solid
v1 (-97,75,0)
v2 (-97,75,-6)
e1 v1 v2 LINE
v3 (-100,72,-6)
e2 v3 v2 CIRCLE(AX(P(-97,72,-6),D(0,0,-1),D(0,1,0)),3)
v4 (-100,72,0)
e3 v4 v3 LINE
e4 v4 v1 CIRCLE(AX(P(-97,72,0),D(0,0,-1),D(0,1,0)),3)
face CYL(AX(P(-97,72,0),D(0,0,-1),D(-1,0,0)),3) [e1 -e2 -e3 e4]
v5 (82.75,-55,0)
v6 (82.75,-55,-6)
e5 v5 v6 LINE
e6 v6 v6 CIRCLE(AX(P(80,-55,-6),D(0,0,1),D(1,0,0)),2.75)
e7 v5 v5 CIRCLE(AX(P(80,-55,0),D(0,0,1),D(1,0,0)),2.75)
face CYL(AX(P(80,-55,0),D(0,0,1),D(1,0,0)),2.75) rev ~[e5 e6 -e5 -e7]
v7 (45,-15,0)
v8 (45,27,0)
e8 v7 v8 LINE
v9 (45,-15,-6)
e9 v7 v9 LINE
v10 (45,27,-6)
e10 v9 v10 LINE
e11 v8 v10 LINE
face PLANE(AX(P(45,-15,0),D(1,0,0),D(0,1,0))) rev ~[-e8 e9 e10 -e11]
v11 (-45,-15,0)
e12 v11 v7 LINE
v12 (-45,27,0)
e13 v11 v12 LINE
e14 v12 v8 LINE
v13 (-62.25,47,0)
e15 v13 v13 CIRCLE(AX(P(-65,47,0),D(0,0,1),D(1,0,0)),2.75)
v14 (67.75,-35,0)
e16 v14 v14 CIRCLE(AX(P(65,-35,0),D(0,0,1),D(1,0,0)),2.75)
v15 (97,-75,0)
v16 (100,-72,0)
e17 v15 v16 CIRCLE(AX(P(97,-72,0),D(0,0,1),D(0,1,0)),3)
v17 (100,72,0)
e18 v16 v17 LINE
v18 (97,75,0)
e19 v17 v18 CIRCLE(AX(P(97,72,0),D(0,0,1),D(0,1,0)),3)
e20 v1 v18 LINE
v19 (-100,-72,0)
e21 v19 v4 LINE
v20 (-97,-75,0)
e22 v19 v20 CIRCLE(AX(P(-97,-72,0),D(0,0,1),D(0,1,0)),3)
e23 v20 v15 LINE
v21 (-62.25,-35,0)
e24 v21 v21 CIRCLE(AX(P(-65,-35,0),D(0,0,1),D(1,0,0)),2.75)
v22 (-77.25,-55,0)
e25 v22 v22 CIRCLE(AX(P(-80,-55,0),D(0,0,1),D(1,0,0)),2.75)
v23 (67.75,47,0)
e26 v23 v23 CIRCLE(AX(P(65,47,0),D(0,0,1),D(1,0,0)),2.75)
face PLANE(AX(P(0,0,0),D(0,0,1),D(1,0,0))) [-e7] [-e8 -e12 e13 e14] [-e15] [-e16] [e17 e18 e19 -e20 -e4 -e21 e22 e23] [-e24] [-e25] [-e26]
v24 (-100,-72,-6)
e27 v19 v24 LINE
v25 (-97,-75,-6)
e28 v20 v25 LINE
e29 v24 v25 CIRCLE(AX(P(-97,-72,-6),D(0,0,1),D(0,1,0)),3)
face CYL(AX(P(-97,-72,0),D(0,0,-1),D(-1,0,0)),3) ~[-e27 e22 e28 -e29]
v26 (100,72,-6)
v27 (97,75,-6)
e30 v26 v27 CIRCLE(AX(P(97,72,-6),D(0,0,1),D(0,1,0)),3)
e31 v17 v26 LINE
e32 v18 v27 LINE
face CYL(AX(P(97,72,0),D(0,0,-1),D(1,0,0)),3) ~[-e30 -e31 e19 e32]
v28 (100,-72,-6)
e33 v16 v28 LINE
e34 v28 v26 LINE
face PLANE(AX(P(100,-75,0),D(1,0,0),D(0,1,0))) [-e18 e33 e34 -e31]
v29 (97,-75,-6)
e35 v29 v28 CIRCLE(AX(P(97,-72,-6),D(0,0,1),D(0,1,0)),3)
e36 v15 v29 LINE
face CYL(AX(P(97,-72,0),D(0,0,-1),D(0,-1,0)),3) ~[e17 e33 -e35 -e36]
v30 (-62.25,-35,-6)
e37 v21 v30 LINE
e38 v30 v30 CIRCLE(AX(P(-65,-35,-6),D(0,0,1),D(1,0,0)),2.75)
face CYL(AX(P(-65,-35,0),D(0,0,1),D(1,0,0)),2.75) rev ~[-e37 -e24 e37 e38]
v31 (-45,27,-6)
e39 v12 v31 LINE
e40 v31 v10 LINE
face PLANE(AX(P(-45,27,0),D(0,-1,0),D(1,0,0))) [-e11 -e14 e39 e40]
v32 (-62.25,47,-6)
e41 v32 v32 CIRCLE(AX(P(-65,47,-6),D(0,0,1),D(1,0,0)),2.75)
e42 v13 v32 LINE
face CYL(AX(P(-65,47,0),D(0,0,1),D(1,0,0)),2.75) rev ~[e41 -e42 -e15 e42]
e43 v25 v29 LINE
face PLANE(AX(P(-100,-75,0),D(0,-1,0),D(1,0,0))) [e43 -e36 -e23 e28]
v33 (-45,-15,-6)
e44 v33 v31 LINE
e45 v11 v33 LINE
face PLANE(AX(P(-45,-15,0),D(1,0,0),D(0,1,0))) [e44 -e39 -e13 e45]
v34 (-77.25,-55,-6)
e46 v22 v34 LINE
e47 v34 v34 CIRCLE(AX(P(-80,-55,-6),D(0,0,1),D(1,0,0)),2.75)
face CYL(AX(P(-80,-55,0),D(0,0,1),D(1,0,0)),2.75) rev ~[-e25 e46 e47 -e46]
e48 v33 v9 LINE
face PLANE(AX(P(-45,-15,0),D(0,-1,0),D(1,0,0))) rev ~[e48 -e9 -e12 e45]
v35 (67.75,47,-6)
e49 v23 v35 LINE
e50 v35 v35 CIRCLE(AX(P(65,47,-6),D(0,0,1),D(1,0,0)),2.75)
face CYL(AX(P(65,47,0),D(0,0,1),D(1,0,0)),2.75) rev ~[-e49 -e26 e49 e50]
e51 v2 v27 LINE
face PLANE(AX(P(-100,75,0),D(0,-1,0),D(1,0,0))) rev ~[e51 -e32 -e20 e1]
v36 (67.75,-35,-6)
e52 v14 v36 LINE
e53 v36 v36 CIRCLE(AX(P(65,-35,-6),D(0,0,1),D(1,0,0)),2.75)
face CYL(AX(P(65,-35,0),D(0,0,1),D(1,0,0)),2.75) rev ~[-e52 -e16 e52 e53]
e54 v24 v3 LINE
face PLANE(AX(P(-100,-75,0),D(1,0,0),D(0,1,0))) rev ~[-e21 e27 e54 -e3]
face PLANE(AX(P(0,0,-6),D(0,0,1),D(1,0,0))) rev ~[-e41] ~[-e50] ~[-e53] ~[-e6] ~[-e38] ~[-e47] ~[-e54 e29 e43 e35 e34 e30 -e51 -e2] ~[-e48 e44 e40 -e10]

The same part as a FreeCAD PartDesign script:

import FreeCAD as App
import Part
import Sketcher

V = App.Vector
Q = App.Units.Quantity


def edges_at(feature, points):
    """Names of the edges that pass closest to the given points."""
    edges = feature.Shape.Edges
    near = lambda p: min(range(len(edges)), key=lambda i: edges[i].distToShape(Part.Vertex(*p))[0])
    return sorted({f"Edge{near(p) + 1}" for p in points})


def add_polygon(sketch, points):
    """Adds a closed chain of lines whose ends are joined by coincident constraints."""
    first, n = sketch.GeometryCount, len(points)
    for a, b in zip(points, points[1:] + points[:1]):
        sketch.addGeometry(Part.LineSegment(App.Vector(*a, 0), App.Vector(*b, 0)), False)
    for i in range(n):
        sketch.addConstraint(Sketcher.Constraint("Coincident", first + i, 2, first + (i + 1) % n, 1))

doc = App.newDocument("Part")
body = doc.addObject("PartDesign::Body", "Body")

sketch1 = doc.addObject("Sketcher::SketchObject", "Sketch")
body.addObject(sketch1)
sketch1.AttachmentSupport = (doc.XY_Plane, [""])
sketch1.MapMode = "FlatFace"
add_polygon(sketch1, [(-100, 75), (-100, -75), (100, -75), (100, 75)])
sketch1.addConstraint(Sketcher.Constraint("Vertical", 0))
sketch1.addConstraint(Sketcher.Constraint("Horizontal", 1))
sketch1.addConstraint(Sketcher.Constraint("Vertical", 2))
sketch1.addConstraint(Sketcher.Constraint("Horizontal", 3))
sketch1.addConstraint(Sketcher.Constraint("Symmetric", 0, 2, 2, 2, -1, 1))
sketch1.addConstraint(Sketcher.Constraint("DistanceX", 1, 1, 1, 2, Q("200 mm")))
sketch1.addConstraint(Sketcher.Constraint("DistanceY", 0, 2, 0, 1, Q("150 mm")))
pad1 = doc.addObject("PartDesign::Pad", "Pad")
body.addObject(pad1)
pad1.Profile = sketch1
pad1.Length = 6
pad1.Reversed = True
doc.recompute()

fillet = doc.addObject("PartDesign::Fillet", "Fillet")
body.addObject(fillet)
fillet.Base = (pad1, edges_at(pad1, [
    (-100, -75, -3),
    (100, -75, -3),
    (100, 75, -3),
    (-100, 75, -3),
]))
fillet.Radius = 3

sketch2 = doc.addObject("Sketcher::SketchObject", "Sketch001")
body.addObject(sketch2)
sketch2.AttachmentSupport = (doc.XY_Plane, [""])
sketch2.MapMode = "FlatFace"
sketch2.addGeometry(Part.Circle(V(-80, -55, 0), V(0, 0, 1), 2.8), False)
sketch2.addGeometry(Part.Circle(V(80, -55, 0), V(0, 0, 1), 2.8), False)
sketch2.addGeometry(Part.Circle(V(-65, 47, 0), V(0, 0, 1), 2.8), False)
sketch2.addGeometry(Part.Circle(V(65, 47, 0), V(0, 0, 1), 2.8), False)
sketch2.addGeometry(Part.Circle(V(65, -35, 0), V(0, 0, 1), 2.8), False)
sketch2.addGeometry(Part.Circle(V(-65, -35, 0), V(0, 0, 1), 2.8), False)
add_polygon(sketch2, [(-45, 27), (-45, -15), (45, -15), (45, 27)])
sketch2.addConstraint(Sketcher.Constraint("Vertical", 6))
sketch2.addConstraint(Sketcher.Constraint("Horizontal", 7))
sketch2.addConstraint(Sketcher.Constraint("Vertical", 8))
sketch2.addConstraint(Sketcher.Constraint("Horizontal", 9))
sketch2.addConstraint(Sketcher.Constraint("Equal", 0, 1))
sketch2.addConstraint(Sketcher.Constraint("Equal", 1, 2))
sketch2.addConstraint(Sketcher.Constraint("Equal", 2, 3))
sketch2.addConstraint(Sketcher.Constraint("Equal", 3, 4))
sketch2.addConstraint(Sketcher.Constraint("Equal", 4, 5))
sketch2.addConstraint(Sketcher.Constraint("Symmetric", 0, 3, 1, 3, -2))
sketch2.addConstraint(Sketcher.Constraint("Symmetric", 2, 3, 3, 3, -2))
sketch2.addConstraint(Sketcher.Constraint("Symmetric", 4, 3, 5, 3, -2))
sketch2.addConstraint(Sketcher.Constraint("Vertical", 3, 3, 4, 3))
sketch2.addConstraint(Sketcher.Constraint("Diameter", 0, Q("5.5 mm")))
sketch2.addConstraint(Sketcher.Constraint("DistanceX", 7, 1, 7, 2, Q("90 mm")))
sketch2.addConstraint(Sketcher.Constraint("DistanceY", 6, 2, 6, 1, Q("42 mm")))
sketch2.addConstraint(Sketcher.Constraint("DistanceX", 0, 3, -1, 1, Q("80 mm")))
sketch2.addConstraint(Sketcher.Constraint("DistanceY", 0, 3, -1, 1, Q("55 mm")))
sketch2.addConstraint(Sketcher.Constraint("DistanceX", 2, 3, -1, 1, Q("65 mm")))
sketch2.addConstraint(Sketcher.Constraint("DistanceY", -1, 1, 2, 3, Q("47 mm")))
sketch2.addConstraint(Sketcher.Constraint("DistanceY", 4, 3, -1, 1, Q("35 mm")))
sketch2.addConstraint(Sketcher.Constraint("DistanceX", 6, 2, -1, 1, Q("45 mm")))
sketch2.addConstraint(Sketcher.Constraint("DistanceY", 6, 2, -1, 1, Q("15 mm")))
pocket1 = doc.addObject("PartDesign::Pocket", "Pocket")
body.addObject(pocket1)
pocket1.Profile = sketch2
pocket1.Type = "ThroughAll"

doc.recompute()
